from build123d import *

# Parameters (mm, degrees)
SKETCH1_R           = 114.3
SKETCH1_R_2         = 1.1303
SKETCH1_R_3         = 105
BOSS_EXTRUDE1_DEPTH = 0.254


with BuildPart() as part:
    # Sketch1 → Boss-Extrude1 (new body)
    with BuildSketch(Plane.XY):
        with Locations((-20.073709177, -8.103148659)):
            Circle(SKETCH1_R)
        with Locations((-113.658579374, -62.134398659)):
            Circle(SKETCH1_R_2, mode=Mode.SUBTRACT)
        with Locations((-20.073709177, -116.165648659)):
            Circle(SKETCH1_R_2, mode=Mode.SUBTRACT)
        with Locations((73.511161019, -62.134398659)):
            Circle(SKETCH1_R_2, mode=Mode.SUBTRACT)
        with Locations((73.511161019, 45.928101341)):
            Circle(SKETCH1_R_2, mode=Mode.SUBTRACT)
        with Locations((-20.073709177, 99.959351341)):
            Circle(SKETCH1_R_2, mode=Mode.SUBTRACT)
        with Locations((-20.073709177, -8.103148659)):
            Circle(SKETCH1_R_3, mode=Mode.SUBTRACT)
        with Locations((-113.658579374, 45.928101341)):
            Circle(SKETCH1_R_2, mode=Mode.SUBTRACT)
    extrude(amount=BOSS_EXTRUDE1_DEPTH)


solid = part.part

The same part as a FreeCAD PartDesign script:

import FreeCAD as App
import Part
import Sketcher
from FreeCAD import Vector
Q = App.Units.Quantity

doc = App.newDocument("Part")
body = doc.addObject("PartDesign::Body", "Body")

# Sketch on XY plane
sketch1 = body.newObject("Sketcher::SketchObject", "Sketch")
sketch1.AttachmentSupport = (doc.getObject("XY_Plane"), [""])
sketch1.MapMode = "FlatFace"
sketch1.addGeometry([
    Part.Circle(Vector(-20.1, -8.1, 0), Vector(0, 0, 1), 114.3),  # 0
    Part.Circle(Vector(-113.7, -62.1, 0), Vector(0, 0, 1), 1.1),  # 1
    Part.Circle(Vector(-20.1, -116.2, 0), Vector(0, 0, 1), 1.1),  # 2
    Part.Circle(Vector(-20.1, -8.1, 0), Vector(0, 0, 1), 105),  # 3
    Part.Circle(Vector(73.5, -62.1, 0), Vector(0, 0, 1), 1.1),  # 4
    Part.Circle(Vector(-113.7, 45.9, 0), Vector(0, 0, 1), 1.1),  # 5
    Part.Circle(Vector(73.5, 45.9, 0), Vector(0, 0, 1), 1.1),  # 6
    Part.Circle(Vector(-20.1, 100, 0), Vector(0, 0, 1), 1.1),  # 7
], False)
sketch1.addConstraint([
    Sketcher.Constraint("Coincident", 3, 3, 0, 3),
    Sketcher.Constraint("Equal", 1, 2),
    Sketcher.Constraint("Equal", 2, 4),
    Sketcher.Constraint("Equal", 4, 5),
    Sketcher.Constraint("Equal", 5, 6),
    Sketcher.Constraint("Equal", 6, 7),
    Sketcher.Constraint("Horizontal", 1, 3, 4, 3),
    Sketcher.Constraint("Horizontal", 5, 3, 6, 3),
    Sketcher.Constraint("Vertical", 0, 3, 2, 3),
    Sketcher.Constraint("Vertical", 1, 3, 5, 3),
    Sketcher.Constraint("Vertical", 4, 3, 6, 3),
    Sketcher.Constraint("Vertical", 3, 3, 7, 3),
    Sketcher.Constraint("Diameter", 0, Q("9 in")),
    Sketcher.Constraint("Diameter", 1, Q("0.089 in")),
    Sketcher.Constraint("Diameter", 3, Q("210 mm")),
    Sketcher.Constraint("DistanceY", 1, 3, -1, 1, Q("62.134399 mm")),
    Sketcher.Constraint("DistanceY", -1, 1, 5, 3, Q("45.928101 mm")),
    Sketcher.Constraint("DistanceY", 2, 3, 0, 3, Q("108.0625 mm")),
    Sketcher.Constraint("DistanceY", 0, 3, 7, 3, Q("108.0625 mm")),
    Sketcher.Constraint("DistanceX", 0, 3, -1, 1, Q("20.073709 mm")),
    Sketcher.Constraint("DistanceY", 0, 3, -1, 1, Q("8.103149 mm")),
    Sketcher.Constraint("DistanceX", 1, 3, -1, 1, Q("113.658579 mm")),
    Sketcher.Constraint("DistanceX", -1, 1, 4, 3, Q("73.511161 mm")),
])
pad1 = body.newObject("PartDesign::Pad", "Pad")
pad1.Profile = sketch1
pad1.Length = Q("0.01 in")

doc.recompute()
